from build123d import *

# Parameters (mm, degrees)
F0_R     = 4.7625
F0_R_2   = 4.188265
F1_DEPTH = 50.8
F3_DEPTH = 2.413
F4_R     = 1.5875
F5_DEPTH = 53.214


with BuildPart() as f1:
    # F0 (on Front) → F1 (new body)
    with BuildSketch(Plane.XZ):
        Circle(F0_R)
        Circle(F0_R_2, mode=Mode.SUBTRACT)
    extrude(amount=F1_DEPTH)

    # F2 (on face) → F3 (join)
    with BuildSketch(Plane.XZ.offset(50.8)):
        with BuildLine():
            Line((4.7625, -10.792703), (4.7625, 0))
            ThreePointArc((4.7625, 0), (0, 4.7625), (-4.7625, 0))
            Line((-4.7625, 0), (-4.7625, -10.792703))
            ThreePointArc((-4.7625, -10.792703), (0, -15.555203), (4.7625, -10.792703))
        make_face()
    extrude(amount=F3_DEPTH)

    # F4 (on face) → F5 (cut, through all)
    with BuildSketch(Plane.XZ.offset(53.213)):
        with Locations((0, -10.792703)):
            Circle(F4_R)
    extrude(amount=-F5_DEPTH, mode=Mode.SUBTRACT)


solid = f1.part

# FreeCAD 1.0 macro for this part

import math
import FreeCAD as App
import Part
import Sketcher
Q = App.Units.Quantity

doc = App.newDocument("Part")
body = doc.addObject("PartDesign::Body", "Body")

sketch1 = body.newObject("Sketcher::SketchObject", "Sketch")
sketch1.AttachmentSupport = (doc.getObject("XZ_Plane"), [""])
sketch1.MapMode = "FlatFace"
sketch1.addGeometry([
    Part.Circle(App.Vector(0, 0, 0), App.Vector(0, 0, 1), 4.7625),
    Part.Circle(App.Vector(0, 0, 0), App.Vector(0, 0, 1), 4.188265),
], False)
sketch1.addConstraint([
    Sketcher.Constraint("Coincident", 0, 3, -1, 1),
    Sketcher.Constraint("Coincident", 1, 3, -1, 1),
    Sketcher.Constraint("Diameter", 0, Q("0.375 in")),
    Sketcher.Constraint("Diameter", 1, Q("8.37653 mm")),
])
pad1 = body.newObject("PartDesign::Pad", "Pad")
pad1.Profile = sketch1
pad1.Length = Q("2 in")

sketch2 = body.newObject("Sketcher::SketchObject", "Sketch001")
sketch2.AttachmentSupport = (doc.getObject("XZ_Plane"), [""])
sketch2.MapMode = "FlatFace"
sketch2.AttachmentOffset = App.Placement(App.Vector(0, 0, 2 * 25.4), App.Rotation())
sketch2.addGeometry([
    Part.LineSegment(App.Vector(4.7625, -10.792703, 0), App.Vector(4.7625, 0, 0)),
    Part.ArcOfCircle(Part.Circle(App.Vector(0, 0, 0), App.Vector(0, 0, 1), 4.7625), math.radians(0), math.radians(180)),
    Part.LineSegment(App.Vector(-4.7625, 0, 0), App.Vector(-4.7625, -10.792703, 0)),
    Part.ArcOfCircle(Part.Circle(App.Vector(0, -10.792703, 0), App.Vector(0, 0, 1), 4.7625), math.radians(180), math.radians(360)),
], False)
sketch2.addConstraint([
    Sketcher.Constraint("Tangent", 0, 2, 1, 1),
    Sketcher.Constraint("Tangent", 1, 2, 2, 1),
    Sketcher.Constraint("Tangent", 2, 2, 3, 1),
    Sketcher.Constraint("Tangent", 3, 2, 0, 1),
    Sketcher.Constraint("Vertical", 0),
    Sketcher.Constraint("Vertical", 2),
    Sketcher.Constraint("Coincident", 1, 3, -1, 1),
    Sketcher.Constraint("Radius", 1, Q("0.1875 in")),
    Sketcher.Constraint("DistanceY", 0, 1, 0, 2, Q("10.792703 mm")),
])
pad2 = body.newObject("PartDesign::Pad", "Pad001")
pad2.Profile = sketch2
pad2.Length = Q("0.095 in")

sketch3 = body.newObject("Sketcher::SketchObject", "Sketch002")
sketch3.AttachmentSupport = (doc.getObject("XZ_Plane"), [""])
sketch3.MapMode = "FlatFace"
sketch3.AttachmentOffset = App.Placement(App.Vector(0, 0, 2.095 * 25.4), App.Rotation())
sketch3.addGeometry(Part.Circle(App.Vector(0, -10.792703, 0), App.Vector(0, 0, 1), 1.5875), False)
sketch3.addConstraint([
    Sketcher.Constraint("PointOnObject", 0, 3, -2),
    Sketcher.Constraint("Diameter", 0, Q("0.125 in")),
    Sketcher.Constraint("DistanceY", 0, 3, -1, 1, Q("10.792703 mm")),
])
pocket1 = body.newObject("PartDesign::Pocket", "Pocket")
pocket1.Profile = sketch3
pocket1.Type = "ThroughAll"

doc.recompute()
